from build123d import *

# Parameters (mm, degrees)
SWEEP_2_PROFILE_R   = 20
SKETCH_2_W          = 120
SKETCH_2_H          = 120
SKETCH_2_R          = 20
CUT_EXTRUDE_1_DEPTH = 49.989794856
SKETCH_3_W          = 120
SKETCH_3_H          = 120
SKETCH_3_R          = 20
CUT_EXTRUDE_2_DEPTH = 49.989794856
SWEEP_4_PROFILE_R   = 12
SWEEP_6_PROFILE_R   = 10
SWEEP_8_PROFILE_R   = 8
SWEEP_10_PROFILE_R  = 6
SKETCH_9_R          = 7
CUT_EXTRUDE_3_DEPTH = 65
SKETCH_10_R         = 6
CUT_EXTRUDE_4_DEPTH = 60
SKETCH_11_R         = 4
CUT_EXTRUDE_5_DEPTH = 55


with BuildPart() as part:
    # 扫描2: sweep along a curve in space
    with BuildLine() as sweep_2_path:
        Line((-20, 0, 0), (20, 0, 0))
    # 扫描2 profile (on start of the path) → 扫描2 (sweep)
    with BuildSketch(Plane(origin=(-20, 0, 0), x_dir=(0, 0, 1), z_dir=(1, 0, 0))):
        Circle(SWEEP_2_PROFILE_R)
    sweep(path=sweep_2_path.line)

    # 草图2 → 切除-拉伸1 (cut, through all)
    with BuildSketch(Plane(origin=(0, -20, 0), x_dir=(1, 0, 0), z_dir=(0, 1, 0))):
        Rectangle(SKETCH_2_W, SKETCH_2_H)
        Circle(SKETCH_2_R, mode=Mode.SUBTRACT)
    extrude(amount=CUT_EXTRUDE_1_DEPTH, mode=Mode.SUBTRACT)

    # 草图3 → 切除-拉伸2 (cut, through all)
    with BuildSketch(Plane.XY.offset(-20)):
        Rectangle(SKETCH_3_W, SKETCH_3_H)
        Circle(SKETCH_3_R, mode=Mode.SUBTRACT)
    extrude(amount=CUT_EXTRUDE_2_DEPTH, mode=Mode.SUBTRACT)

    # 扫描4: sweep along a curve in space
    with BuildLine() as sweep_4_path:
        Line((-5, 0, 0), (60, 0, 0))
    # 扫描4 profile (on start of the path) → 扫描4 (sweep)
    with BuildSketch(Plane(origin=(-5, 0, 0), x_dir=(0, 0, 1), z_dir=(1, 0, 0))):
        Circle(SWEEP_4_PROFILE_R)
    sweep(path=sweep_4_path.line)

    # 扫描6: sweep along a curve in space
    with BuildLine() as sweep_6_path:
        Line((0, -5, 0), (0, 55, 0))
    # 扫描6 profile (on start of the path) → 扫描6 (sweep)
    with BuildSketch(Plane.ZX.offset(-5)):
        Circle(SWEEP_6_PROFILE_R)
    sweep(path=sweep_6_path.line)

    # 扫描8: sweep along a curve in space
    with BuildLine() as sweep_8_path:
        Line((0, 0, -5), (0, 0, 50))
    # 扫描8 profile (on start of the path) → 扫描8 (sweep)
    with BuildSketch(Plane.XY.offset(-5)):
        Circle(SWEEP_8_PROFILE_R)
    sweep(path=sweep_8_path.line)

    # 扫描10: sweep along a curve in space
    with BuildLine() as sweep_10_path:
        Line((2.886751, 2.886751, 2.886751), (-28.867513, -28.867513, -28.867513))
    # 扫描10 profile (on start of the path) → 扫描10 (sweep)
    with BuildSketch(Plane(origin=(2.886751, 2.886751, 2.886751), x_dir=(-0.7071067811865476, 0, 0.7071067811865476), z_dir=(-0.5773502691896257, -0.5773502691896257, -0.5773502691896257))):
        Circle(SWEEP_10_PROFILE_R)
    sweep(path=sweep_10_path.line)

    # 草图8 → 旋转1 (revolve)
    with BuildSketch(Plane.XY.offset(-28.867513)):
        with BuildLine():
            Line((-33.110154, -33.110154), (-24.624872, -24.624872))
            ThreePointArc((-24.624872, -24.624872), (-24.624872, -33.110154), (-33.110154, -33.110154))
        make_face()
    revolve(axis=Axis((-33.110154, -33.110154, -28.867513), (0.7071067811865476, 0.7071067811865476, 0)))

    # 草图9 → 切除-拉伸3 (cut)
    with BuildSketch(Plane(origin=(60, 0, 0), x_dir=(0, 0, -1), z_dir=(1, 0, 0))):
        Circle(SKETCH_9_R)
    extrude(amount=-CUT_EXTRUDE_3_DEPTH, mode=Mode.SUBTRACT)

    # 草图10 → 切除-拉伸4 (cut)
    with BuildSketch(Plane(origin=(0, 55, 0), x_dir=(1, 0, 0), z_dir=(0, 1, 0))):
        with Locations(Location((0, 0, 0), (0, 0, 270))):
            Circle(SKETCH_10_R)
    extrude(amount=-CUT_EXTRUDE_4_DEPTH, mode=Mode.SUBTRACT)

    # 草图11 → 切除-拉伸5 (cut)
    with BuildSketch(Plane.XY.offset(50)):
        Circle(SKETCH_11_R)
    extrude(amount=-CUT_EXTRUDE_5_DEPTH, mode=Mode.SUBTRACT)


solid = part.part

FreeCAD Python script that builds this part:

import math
import FreeCAD as App
import Part
import Sketcher
from FreeCAD import Vector
Q = App.Units.Quantity


def add_polygon(sketch, points):
    """Adds a closed chain of lines whose ends are joined by coincident constraints."""
    first, n = sketch.GeometryCount, len(points)
    for a, b in zip(points, points[1:] + points[:1]):
        sketch.addGeometry(Part.LineSegment(App.Vector(*a, 0), App.Vector(*b, 0)), False)
    for i in range(n):
        sketch.addConstraint(Sketcher.Constraint("Coincident", first + i, 2, first + (i + 1) % n, 1))

doc = App.newDocument("Part")
body = doc.addObject("PartDesign::Body", "Body")

sketch1 = body.newObject("Sketcher::SketchObject", "Sketch")
sketch1.AttachmentSupport = (doc.getObject("YZ_Plane"), [""])
sketch1.MapMode = "FlatFace"
sketch1.AttachmentOffset = App.Placement(Vector(0, 0, -20), App.Rotation())
sketch1.addGeometry(Part.Circle(Vector(0, 0, 0), Vector(0, 0, 1), 20), False)
sketch1.addConstraint([
    Sketcher.Constraint("Coincident", 0, 3, -1, 1),
    Sketcher.Constraint("Diameter", 0, 40.0),
])

sketch2 = body.newObject("Sketcher::SketchObject", "Sketch001")
sketch2.AttachmentSupport = (doc.getObject("XY_Plane"), [""])
sketch2.MapMode = "FlatFace"
sketch2.addGeometry(Part.LineSegment(Vector(-20, 0, 0), Vector(20, 0, 0)), False)
sketch2.addConstraint([
    Sketcher.Constraint("Horizontal", 0),
    Sketcher.Constraint("Symmetric", 0, 1, 0, 2, -1, 1),
    Sketcher.Constraint("DistanceX", 0, 1, 0, 2, 40.0),
])
doc.recompute()

additivepipe = body.newObject("PartDesign::AdditivePipe", "AdditivePipe")
additivepipe.Profile = sketch1
additivepipe.Spine = (sketch2, ["Edge1"])

sketch3 = body.newObject("Sketcher::SketchObject", "Sketch002")
sketch3.AttachmentSupport = (doc.getObject("XZ_Plane"), [""])
sketch3.MapMode = "FlatFace"
sketch3.AttachmentOffset = App.Placement(Vector(0, 0, 20), App.Rotation())
add_polygon(sketch3, [(-60, -60), (-60, 60), (60, 60), (60, -60)])
sketch3.addGeometry(Part.Circle(Vector(0, 0, 0), Vector(0, 0, 1), 20), False)
sketch3.addConstraint([
    Sketcher.Constraint("Vertical", 0),
    Sketcher.Constraint("Horizontal", 1),
    Sketcher.Constraint("Vertical", 2),
    Sketcher.Constraint("Horizontal", 3),
    Sketcher.Constraint("Coincident", 4, 3, -1, 1),
    Sketcher.Constraint("Symmetric", 0, 2, 2, 2, -1, 1),
    Sketcher.Constraint("Equal", 3, 0),
    Sketcher.Constraint("Diameter", 4, 40.0),
    Sketcher.Constraint("DistanceX", 1, 1, 1, 2, 120.0),
])
pocket1 = body.newObject("PartDesign::Pocket", "Pocket")
pocket1.Profile = sketch3
pocket1.Type = "ThroughAll"

sketch4 = body.newObject("Sketcher::SketchObject", "Sketch003")
sketch4.AttachmentSupport = (doc.getObject("XY_Plane"), [""])
sketch4.MapMode = "FlatFace"
sketch4.AttachmentOffset = App.Placement(Vector(0, 0, -20), App.Rotation())
add_polygon(sketch4, [(-60, 60), (-60, -60), (60, -60), (60, 60)])
sketch4.addGeometry(Part.Circle(Vector(0, 0, 0), Vector(0, 0, 1), 20), False)
sketch4.addConstraint([
    Sketcher.Constraint("Vertical", 0),
    Sketcher.Constraint("Horizontal", 1),
    Sketcher.Constraint("Vertical", 2),
    Sketcher.Constraint("Horizontal", 3),
    Sketcher.Constraint("Coincident", 4, 3, -1, 1),
    Sketcher.Constraint("Symmetric", 0, 2, 2, 2, -1, 1),
    Sketcher.Constraint("Equal", 3, 0),
    Sketcher.Constraint("Diameter", 4, 40.0),
    Sketcher.Constraint("DistanceX", 1, 1, 1, 2, 120.0),
])
pocket2 = body.newObject("PartDesign::Pocket", "Pocket001")
pocket2.Profile = sketch4
pocket2.Type = "ThroughAll"
pocket2.Reversed = True

sketch5 = body.newObject("Sketcher::SketchObject", "Sketch004")
sketch5.AttachmentSupport = (doc.getObject("YZ_Plane"), [""])
sketch5.MapMode = "FlatFace"
sketch5.AttachmentOffset = App.Placement(Vector(0, 0, -5), App.Rotation())
sketch5.addGeometry(Part.Circle(Vector(0, 0, 0), Vector(0, 0, 1), 12), False)
sketch5.addConstraint([
    Sketcher.Constraint("Coincident", 0, 3, -1, 1),
    Sketcher.Constraint("Diameter", 0, 24.0),
])

sketch6 = body.newObject("Sketcher::SketchObject", "Sketch005")
sketch6.AttachmentSupport = (doc.getObject("XY_Plane"), [""])
sketch6.MapMode = "FlatFace"
sketch6.addGeometry(Part.LineSegment(Vector(-5, 0, 0), Vector(60, 0, 0)), False)
sketch6.addConstraint([
    Sketcher.Constraint("Horizontal", 0),
    Sketcher.Constraint("PointOnObject", 0, 1, -1),
    Sketcher.Constraint("DistanceX", 0, 1, 0, 2, 65.0),
    Sketcher.Constraint("DistanceX", 0, 1, -1, 1, 5.0),
])
doc.recompute()

additivepipe2 = body.newObject("PartDesign::AdditivePipe", "AdditivePipe001")
additivepipe2.Profile = sketch5
additivepipe2.Spine = (sketch6, ["Edge1"])

sketch7 = body.newObject("Sketcher::SketchObject", "Sketch006")
sketch7.AttachmentSupport = (doc.getObject("XZ_Plane"), [""])
sketch7.MapMode = "FlatFace"
sketch7.AttachmentOffset = App.Placement(Vector(0, 0, 5), App.Rotation())
sketch7.addGeometry(Part.Circle(Vector(0, 0, 0), Vector(0, 0, 1), 10), False)
sketch7.addConstraint([
    Sketcher.Constraint("Coincident", 0, 3, -1, 1),
    Sketcher.Constraint("Diameter", 0, 20.0),
])

sketch8 = body.newObject("Sketcher::SketchObject", "Sketch007")
sketch8.AttachmentSupport = (doc.getObject("XY_Plane"), [""])
sketch8.MapMode = "FlatFace"
sketch8.addGeometry(Part.LineSegment(Vector(0, -5, 0), Vector(0, 55, 0)), False)
sketch8.addConstraint([
    Sketcher.Constraint("Vertical", 0),
    Sketcher.Constraint("PointOnObject", 0, 1, -2),
    Sketcher.Constraint("DistanceY", 0, 1, 0, 2, 60.0),
    Sketcher.Constraint("DistanceY", 0, 1, -1, 1, 5.0),
])
doc.recompute()

additivepipe3 = body.newObject("PartDesign::AdditivePipe", "AdditivePipe002")
additivepipe3.Profile = sketch7
additivepipe3.Spine = (sketch8, ["Edge1"])

sketch9 = body.newObject("Sketcher::SketchObject", "Sketch008")
sketch9.AttachmentSupport = (doc.getObject("XY_Plane"), [""])
sketch9.MapMode = "FlatFace"
sketch9.AttachmentOffset = App.Placement(Vector(0, 0, -5), App.Rotation())
sketch9.addGeometry(Part.Circle(Vector(0, 0, 0), Vector(0, 0, 1), 8), False)
sketch9.addConstraint([
    Sketcher.Constraint("Coincident", 0, 3, -1, 1),
    Sketcher.Constraint("Diameter", 0, 16.0),
])

sketch10 = body.newObject("Sketcher::SketchObject", "Sketch009")
sketch10.AttachmentSupport = (doc.getObject("XZ_Plane"), [""])
sketch10.MapMode = "FlatFace"
sketch10.addGeometry(Part.LineSegment(Vector(0, -5, 0), Vector(0, 50, 0)), False)
sketch10.addConstraint([
    Sketcher.Constraint("Vertical", 0),
    Sketcher.Constraint("PointOnObject", 0, 1, -2),
    Sketcher.Constraint("DistanceY", 0, 1, 0, 2, 55.0),
    Sketcher.Constraint("DistanceY", 0, 1, -1, 1, 5.0),
])
doc.recompute()

additivepipe4 = body.newObject("PartDesign::AdditivePipe", "AdditivePipe003")
additivepipe4.Profile = sketch9
additivepipe4.Spine = (sketch10, ["Edge1"])

sketch11 = body.newObject("Sketcher::SketchObject", "Sketch010")
sketch11.Placement = App.Placement(Vector(2.886751, 2.886751, 2.886751), App.Rotation(Vector(-0.707106781, 0, 0.707106781), Vector(-0.40824829, 0.81649658, -0.40824829), Vector(-0.577350269, -0.577350269, -0.577350269), "ZXY"))
sketch11.addGeometry(Part.Circle(Vector(0, 0, 0), Vector(0, 0, 1), 6), False)
sketch11.addConstraint([
    Sketcher.Constraint("Coincident", 0, 3, -1, 1),
    Sketcher.Constraint("Diameter", 0, 12.0),
])

sketch12 = body.newObject("Sketcher::SketchObject", "Sketch011")
sketch12.Placement = App.Placement(Vector(0, 0, 0), App.Rotation(Vector(0, -0.707106781, -0.707106781), Vector(0.999999999, 0, 0), Vector(0, -0.707106781, 0.707106781), "ZXY"))
sketch12.addGeometry(Part.LineSegment(Vector(-4, 3, 0), Vector(41, -29, 0)), False)
sketch12.addConstraint([
    Sketcher.Constraint("Distance", 0, 54.999999),
    Sketcher.Constraint("DistanceY", -1, 1, 0, 1, 2.886751),
    Sketcher.Constraint("DistanceX", -1, 1, 0, 2, 40.824828),
    Sketcher.Constraint("DistanceX", 0, 1, 0, 2, 44.907311),
])
doc.recompute()

additivepipe5 = body.newObject("PartDesign::AdditivePipe", "AdditivePipe004")
additivepipe5.Profile = sketch11
additivepipe5.Spine = (sketch12, ["Edge1"])

sketch13 = body.newObject("Sketcher::SketchObject", "Sketch012")
sketch13.AttachmentSupport = (doc.getObject("XY_Plane"), [""])
sketch13.MapMode = "FlatFace"
sketch13.AttachmentOffset = App.Placement(Vector(0, 0, -28.867513), App.Rotation())
sketch13.addGeometry([
    Part.LineSegment(Vector(-25, -25, 0), Vector(-33, -33, 0)),
    Part.ArcOfCircle(Part.Circle(Vector(-29, -29, 0), Vector(0, 0, 1), 6), math.radians(-135), math.radians(45)),
], False)
sketch13.addGeometry(Part.LineSegment(Vector(-33, -33, 0), Vector(-25, -25, 0)), True)
sketch13.addConstraint([
    Sketcher.Constraint("Coincident", 0, 1, 1, 2),
    Sketcher.Constraint("Coincident", 1, 1, 0, 2),
    Sketcher.Constraint("Coincident", 2, 1, 1, 1),
    Sketcher.Constraint("Coincident", 2, 2, 0, 1),
    Sketcher.Constraint("Radius", 1, 6.0),
    Sketcher.Constraint("Angle", 0, Q("-135 deg")),
    Sketcher.Constraint("DistanceX", 0, 1, -1, 1, 24.624872),
    Sketcher.Constraint("DistanceY", 0, 1, -1, 1, 24.624872),
    Sketcher.Constraint("DistanceX", 1, 3, 0, 1, 4.242641),
])
revolution = body.newObject("PartDesign::Revolution", "Revolution")
revolution.Profile = sketch13
revolution.ReferenceAxis = (sketch13, ["Axis0"])
revolution.Angle = 360

sketch14 = body.newObject("Sketcher::SketchObject", "Sketch013")
sketch14.AttachmentSupport = (doc.getObject("YZ_Plane"), [""])
sketch14.MapMode = "FlatFace"
sketch14.AttachmentOffset = App.Placement(Vector(0, 0, 60), App.Rotation())
sketch14.addGeometry(Part.Circle(Vector(0, 0, 0), Vector(0, 0, 1), 7), False)
sketch14.addConstraint([
    Sketcher.Constraint("Coincident", 0, 3, -1, 1),
    Sketcher.Constraint("Diameter", 0, 14.0),
])
pocket3 = body.newObject("PartDesign::Pocket", "Pocket002")
pocket3.Profile = sketch14
pocket3.Length = 65

sketch15 = body.newObject("Sketcher::SketchObject", "Sketch014")
sketch15.AttachmentSupport = (doc.getObject("XZ_Plane"), [""])
sketch15.MapMode = "FlatFace"
sketch15.AttachmentOffset = App.Placement(Vector(0, 0, -55), App.Rotation())
sketch15.addGeometry(Part.Circle(Vector(0, 0, 0), Vector(0, 0, 1), 6), False)
sketch15.addConstraint([
    Sketcher.Constraint("Coincident", 0, 3, -1, 1),
    Sketcher.Constraint("Diameter", 0, 12.0),
])
pocket4 = body.newObject("PartDesign::Pocket", "Pocket003")
pocket4.Profile = sketch15
pocket4.Length = 60
pocket4.Reversed = True

sketch16 = body.newObject("Sketcher::SketchObject", "Sketch015")
sketch16.AttachmentSupport = (doc.getObject("XY_Plane"), [""])
sketch16.MapMode = "FlatFace"
sketch16.AttachmentOffset = App.Placement(Vector(0, 0, 50), App.Rotation())
sketch16.addGeometry(Part.Circle(Vector(0, 0, 0), Vector(0, 0, 1), 4), False)
sketch16.addConstraint([
    Sketcher.Constraint("Coincident", 0, 3, -1, 1),
    Sketcher.Constraint("Diameter", 0, 8.0),
])
pocket5 = body.newObject("PartDesign::Pocket", "Pocket004")
pocket5.Profile = sketch16
pocket5.Length = 55

doc.recompute()
